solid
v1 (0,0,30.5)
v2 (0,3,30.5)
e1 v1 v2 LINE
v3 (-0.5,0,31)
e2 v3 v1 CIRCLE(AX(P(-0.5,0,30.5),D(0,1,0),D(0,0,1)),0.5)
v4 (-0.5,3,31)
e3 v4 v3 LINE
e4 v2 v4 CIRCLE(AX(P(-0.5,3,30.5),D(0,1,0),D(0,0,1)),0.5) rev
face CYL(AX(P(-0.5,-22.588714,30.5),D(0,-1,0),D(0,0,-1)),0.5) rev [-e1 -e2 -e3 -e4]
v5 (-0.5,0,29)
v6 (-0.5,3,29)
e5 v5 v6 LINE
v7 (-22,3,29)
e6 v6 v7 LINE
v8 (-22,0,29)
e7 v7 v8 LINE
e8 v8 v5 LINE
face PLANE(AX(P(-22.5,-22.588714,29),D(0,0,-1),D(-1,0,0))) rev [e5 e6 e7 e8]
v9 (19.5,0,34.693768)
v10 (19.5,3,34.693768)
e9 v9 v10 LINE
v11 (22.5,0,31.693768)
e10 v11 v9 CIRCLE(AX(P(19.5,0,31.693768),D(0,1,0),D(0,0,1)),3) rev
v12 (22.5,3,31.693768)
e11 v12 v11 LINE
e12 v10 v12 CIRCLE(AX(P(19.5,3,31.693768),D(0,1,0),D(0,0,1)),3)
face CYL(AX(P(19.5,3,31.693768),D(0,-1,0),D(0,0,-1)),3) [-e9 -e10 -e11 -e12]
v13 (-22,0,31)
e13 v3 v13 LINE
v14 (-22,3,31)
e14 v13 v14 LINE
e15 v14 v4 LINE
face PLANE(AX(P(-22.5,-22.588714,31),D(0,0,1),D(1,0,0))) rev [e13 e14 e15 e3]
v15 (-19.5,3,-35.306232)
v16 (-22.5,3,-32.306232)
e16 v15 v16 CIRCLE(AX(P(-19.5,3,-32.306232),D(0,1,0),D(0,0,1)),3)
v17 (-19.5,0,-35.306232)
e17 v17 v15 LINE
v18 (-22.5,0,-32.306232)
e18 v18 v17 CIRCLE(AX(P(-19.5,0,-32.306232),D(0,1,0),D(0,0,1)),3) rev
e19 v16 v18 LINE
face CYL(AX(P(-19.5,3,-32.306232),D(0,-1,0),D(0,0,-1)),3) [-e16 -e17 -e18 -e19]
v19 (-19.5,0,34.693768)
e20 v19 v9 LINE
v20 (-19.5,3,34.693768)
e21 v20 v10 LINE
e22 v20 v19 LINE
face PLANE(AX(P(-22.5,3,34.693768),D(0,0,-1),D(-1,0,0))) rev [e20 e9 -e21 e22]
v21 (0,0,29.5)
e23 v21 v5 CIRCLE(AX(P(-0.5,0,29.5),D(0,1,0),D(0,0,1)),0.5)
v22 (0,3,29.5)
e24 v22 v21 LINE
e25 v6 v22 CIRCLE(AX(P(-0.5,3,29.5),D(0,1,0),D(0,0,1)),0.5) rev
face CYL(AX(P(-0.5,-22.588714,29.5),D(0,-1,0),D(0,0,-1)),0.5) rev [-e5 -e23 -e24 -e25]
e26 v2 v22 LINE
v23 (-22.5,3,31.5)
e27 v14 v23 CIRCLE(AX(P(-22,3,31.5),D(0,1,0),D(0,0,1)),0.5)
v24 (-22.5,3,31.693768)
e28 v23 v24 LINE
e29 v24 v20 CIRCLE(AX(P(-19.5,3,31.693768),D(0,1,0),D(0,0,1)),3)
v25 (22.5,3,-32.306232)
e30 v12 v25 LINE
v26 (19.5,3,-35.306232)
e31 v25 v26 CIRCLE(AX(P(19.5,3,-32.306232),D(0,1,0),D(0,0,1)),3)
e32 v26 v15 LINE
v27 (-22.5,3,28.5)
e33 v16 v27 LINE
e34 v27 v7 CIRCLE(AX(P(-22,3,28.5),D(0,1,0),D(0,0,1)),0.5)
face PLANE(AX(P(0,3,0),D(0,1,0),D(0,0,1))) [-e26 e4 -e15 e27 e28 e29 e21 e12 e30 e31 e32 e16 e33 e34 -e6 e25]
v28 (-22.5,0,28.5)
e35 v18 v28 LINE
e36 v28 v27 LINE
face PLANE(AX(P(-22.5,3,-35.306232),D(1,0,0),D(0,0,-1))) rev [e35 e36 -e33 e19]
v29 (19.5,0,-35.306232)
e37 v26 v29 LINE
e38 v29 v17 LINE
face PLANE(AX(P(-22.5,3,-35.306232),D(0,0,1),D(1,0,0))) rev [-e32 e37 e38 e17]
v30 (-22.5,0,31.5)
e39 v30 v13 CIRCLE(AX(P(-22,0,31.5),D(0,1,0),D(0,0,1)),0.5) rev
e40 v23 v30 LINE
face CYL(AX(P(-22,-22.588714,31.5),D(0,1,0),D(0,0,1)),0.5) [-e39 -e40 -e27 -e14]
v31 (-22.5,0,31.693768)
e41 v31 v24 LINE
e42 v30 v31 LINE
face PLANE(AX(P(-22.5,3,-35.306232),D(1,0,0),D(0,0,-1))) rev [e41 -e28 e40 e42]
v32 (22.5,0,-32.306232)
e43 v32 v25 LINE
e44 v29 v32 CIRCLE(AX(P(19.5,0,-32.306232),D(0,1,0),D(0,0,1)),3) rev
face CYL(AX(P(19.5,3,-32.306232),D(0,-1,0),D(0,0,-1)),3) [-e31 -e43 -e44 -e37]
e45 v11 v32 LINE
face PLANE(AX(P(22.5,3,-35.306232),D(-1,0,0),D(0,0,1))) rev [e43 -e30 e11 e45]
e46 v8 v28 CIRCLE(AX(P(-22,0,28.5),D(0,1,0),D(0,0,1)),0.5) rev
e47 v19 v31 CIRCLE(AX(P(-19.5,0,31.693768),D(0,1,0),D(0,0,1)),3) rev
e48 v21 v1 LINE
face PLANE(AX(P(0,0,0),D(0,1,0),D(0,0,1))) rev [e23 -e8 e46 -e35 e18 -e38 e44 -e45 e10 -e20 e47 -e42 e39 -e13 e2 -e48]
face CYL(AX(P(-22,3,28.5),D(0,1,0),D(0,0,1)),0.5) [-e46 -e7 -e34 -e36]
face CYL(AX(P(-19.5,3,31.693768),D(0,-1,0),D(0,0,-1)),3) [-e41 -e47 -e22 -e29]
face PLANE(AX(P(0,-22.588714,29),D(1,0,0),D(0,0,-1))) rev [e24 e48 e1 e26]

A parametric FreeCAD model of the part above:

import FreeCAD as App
import Part
import Sketcher
from FreeCAD import Vector


def edges_at(feature, points):
    """Names of the edges that pass closest to the given points."""
    edges = feature.Shape.Edges
    near = lambda p: min(range(len(edges)), key=lambda i: edges[i].distToShape(Part.Vertex(*p))[0])
    return sorted({f"Edge{near(p) + 1}" for p in points})


def add_polygon(sketch, points):
    """Adds a closed chain of lines whose ends are joined by coincident constraints."""
    first, n = sketch.GeometryCount, len(points)
    for a, b in zip(points, points[1:] + points[:1]):
        sketch.addGeometry(Part.LineSegment(App.Vector(*a, 0), App.Vector(*b, 0)), False)
    for i in range(n):
        sketch.addConstraint(Sketcher.Constraint("Coincident", first + i, 2, first + (i + 1) % n, 1))

doc = App.newDocument("Part")
body = doc.addObject("PartDesign::Body", "Body")

# Sketch on XZ plane
sketch1 = doc.addObject("Sketcher::SketchObject", "Sketch")
body.addObject(sketch1)
sketch1.AttachmentSupport = (doc.XZ_Plane, [""])
sketch1.MapMode = "FlatFace"
add_polygon(sketch1, [(-22.5, -35.306232), (-22.5, 34.693768), (22.5, 34.693768), (22.5, -35.306232)])  # lines 0-3
sketch1.addConstraint(Sketcher.Constraint("Vertical", 0))
sketch1.addConstraint(Sketcher.Constraint("Horizontal", 1))
sketch1.addConstraint(Sketcher.Constraint("Vertical", 2))
sketch1.addConstraint(Sketcher.Constraint("Horizontal", 3))
sketch1.addConstraint(Sketcher.Constraint("DistanceX", 1, 1, 1, 2, 45.0))
sketch1.addConstraint(Sketcher.Constraint("DistanceY", 0, 1, 0, 2, 70.0))
sketch1.addConstraint(Sketcher.Constraint("DistanceX", 0, 2, -1, 1, 22.5))
sketch1.addConstraint(Sketcher.Constraint("DistanceY", -1, 1, 0, 2, 34.693768))
pad1 = doc.addObject("PartDesign::Pad", "Pad")
body.addObject(pad1)
pad1.Profile = sketch1
pad1.Length = 3
pad1.Reversed = True

# Sketch on XZ plane
sketch2 = doc.addObject("Sketcher::SketchObject", "Sketch001")
body.addObject(sketch2)
sketch2.AttachmentSupport = (doc.XZ_Plane, [""])
sketch2.MapMode = "FlatFace"
sketch2.AttachmentOffset = App.Placement(Vector(0, 0, -3), App.Rotation())
add_polygon(sketch2, [(-22.5, 29), (-22.5, 31), (0, 31), (0, 29)])  # lines 0-3
sketch2.addConstraint(Sketcher.Constraint("Vertical", 0))
sketch2.addConstraint(Sketcher.Constraint("Horizontal", 1))
sketch2.addConstraint(Sketcher.Constraint("Vertical", 2))
sketch2.addConstraint(Sketcher.Constraint("Horizontal", 3))
sketch2.addConstraint(Sketcher.Constraint("PointOnObject", 1, 2, -2))
sketch2.addConstraint(Sketcher.Constraint("DistanceY", 0, 1, 0, 2, 2.0))
sketch2.addConstraint(Sketcher.Constraint("DistanceX", 1, 1, 1, 2, 22.5))
sketch2.addConstraint(Sketcher.Constraint("DistanceY", -1, 1, 0, 2, 31.0))
pocket1 = doc.addObject("PartDesign::Pocket", "Pocket")
body.addObject(pocket1)
pocket1.Profile = sketch2
pocket1.Length = 3
pocket1.Reversed = True
doc.recompute()

fillet = doc.addObject("PartDesign::Fillet", "Fillet")
body.addObject(fillet)
fillet.Base = (pocket1, edges_at(pocket1, [
    (-22.5, 1.5, -35.306),
    (22.5, 1.5, -35.306),
    (22.5, 1.5, 34.694),
    (-22.5, 1.5, 34.694),
]))
fillet.Radius = 3
doc.recompute()

fillet2 = doc.addObject("PartDesign::Fillet", "Fillet001")
body.addObject(fillet2)
fillet2.Base = (fillet, edges_at(fillet, [
    (-22.5, 1.5, 31),
    (-22.5, 1.5, 29),
    (0, 1.5, 29),
    (0, 1.5, 31),
]))
fillet2.Radius = 0.5

doc.recompute()
